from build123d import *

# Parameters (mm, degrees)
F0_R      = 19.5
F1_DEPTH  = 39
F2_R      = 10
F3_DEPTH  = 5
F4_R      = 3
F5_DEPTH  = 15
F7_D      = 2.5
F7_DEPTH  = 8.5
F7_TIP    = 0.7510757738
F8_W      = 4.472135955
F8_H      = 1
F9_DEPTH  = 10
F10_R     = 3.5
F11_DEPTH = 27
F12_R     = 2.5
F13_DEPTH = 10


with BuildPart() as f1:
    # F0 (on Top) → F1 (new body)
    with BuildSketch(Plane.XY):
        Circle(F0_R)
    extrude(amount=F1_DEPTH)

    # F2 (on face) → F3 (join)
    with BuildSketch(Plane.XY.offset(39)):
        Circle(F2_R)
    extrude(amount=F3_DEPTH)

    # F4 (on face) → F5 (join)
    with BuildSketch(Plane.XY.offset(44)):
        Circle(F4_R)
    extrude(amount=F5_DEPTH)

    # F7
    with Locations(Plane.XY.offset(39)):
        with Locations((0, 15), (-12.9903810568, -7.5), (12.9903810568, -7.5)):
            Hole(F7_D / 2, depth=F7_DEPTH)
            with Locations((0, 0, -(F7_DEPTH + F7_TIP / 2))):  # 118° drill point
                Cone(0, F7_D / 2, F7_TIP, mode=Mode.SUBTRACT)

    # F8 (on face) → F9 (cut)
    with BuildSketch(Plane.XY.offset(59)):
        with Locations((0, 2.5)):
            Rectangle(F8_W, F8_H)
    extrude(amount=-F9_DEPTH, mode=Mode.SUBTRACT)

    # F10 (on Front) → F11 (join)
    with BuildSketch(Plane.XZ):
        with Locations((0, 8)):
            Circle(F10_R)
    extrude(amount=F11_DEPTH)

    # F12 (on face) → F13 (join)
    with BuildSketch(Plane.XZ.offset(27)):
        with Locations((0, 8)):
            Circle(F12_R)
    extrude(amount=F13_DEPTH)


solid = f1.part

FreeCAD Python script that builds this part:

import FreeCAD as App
import Part
import Sketcher
from FreeCAD import Vector


def add_polygon(sketch, points):
    """Adds a closed chain of lines whose ends are joined by coincident constraints."""
    first, n = sketch.GeometryCount, len(points)
    for a, b in zip(points, points[1:] + points[:1]):
        sketch.addGeometry(Part.LineSegment(App.Vector(*a, 0), App.Vector(*b, 0)), False)
    for i in range(n):
        sketch.addConstraint(Sketcher.Constraint("Coincident", first + i, 2, first + (i + 1) % n, 1))

doc = App.newDocument("Part")
params = doc.addObject("Spreadsheet::Sheet", "Params")
for row, (alias, value) in enumerate([
    ("sketch1_diameter", "39 mm"),
    ("pad1_length", "39 mm"),
    ("sketch2_diameter", "20 mm"),
    ("pad2_length", "5 mm"),
    ("sketch3_diameter", "6 mm"),
    ("pad3_length", "15 mm"),
    ("sketch4_diameter", "2.5 mm"),
    ("hole_diameter", "2.5 mm"),
    ("hole_depth", "8.5 mm"),
    ("sketch5_height", "1 mm"),
    ("pocket1_length", "10 mm"),
    ("sketch6_diameter", "7 mm"),
    ("pad4_length", "27 mm"),
    ("sketch7_diameter", "5 mm"),
    ("pad5_length", "10 mm"),
], start=1):
    params.set(f"A{row}", alias)
    params.set(f"B{row}", "=" + value)
    params.setAlias(f"B{row}", alias)

body = doc.addObject("PartDesign::Body", "Body")

# Sketch on XY plane
sketch1 = body.newObject("Sketcher::SketchObject", "Sketch")
sketch1.AttachmentSupport = (doc.getObject("XY_Plane"), [""])
sketch1.MapMode = "FlatFace"
sketch1.addGeometry(Part.Circle(Vector(0, 0, 0), Vector(0, 0, 1), 20), False)
sketch1.addConstraint(Sketcher.Constraint("Coincident", 0, 3, -1, 1))
sketch1.addConstraint(Sketcher.Constraint("Diameter", 0, 39.0))
sketch1.setExpression("Constraints[1]", "Params.sketch1_diameter")
pad1 = body.newObject("PartDesign::Pad", "Pad")
pad1.Profile = sketch1
pad1.setExpression("Length", "Params.pad1_length")

# Sketch on XY plane
sketch2 = body.newObject("Sketcher::SketchObject", "Sketch001")
sketch2.AttachmentSupport = (doc.getObject("XY_Plane"), [""])
sketch2.MapMode = "FlatFace"
sketch2.AttachmentOffset = App.Placement(Vector(0, 0, 39), App.Rotation())
sketch2.addGeometry(Part.Circle(Vector(0, 0, 0), Vector(0, 0, 1), 10), False)
sketch2.addConstraint(Sketcher.Constraint("Coincident", 0, 3, -1, 1))
sketch2.addConstraint(Sketcher.Constraint("Diameter", 0, 20.0))
sketch2.setExpression("Constraints[1]", "Params.sketch2_diameter")
pad2 = body.newObject("PartDesign::Pad", "Pad001")
pad2.Profile = sketch2
pad2.setExpression("Length", "Params.pad2_length")

# Sketch on XY plane
sketch3 = body.newObject("Sketcher::SketchObject", "Sketch002")
sketch3.AttachmentSupport = (doc.getObject("XY_Plane"), [""])
sketch3.MapMode = "FlatFace"
sketch3.AttachmentOffset = App.Placement(Vector(0, 0, 44), App.Rotation())
sketch3.addGeometry(Part.Circle(Vector(0, 0, 0), Vector(0, 0, 1), 3), False)
sketch3.addConstraint(Sketcher.Constraint("Coincident", 0, 3, -1, 1))
sketch3.addConstraint(Sketcher.Constraint("Diameter", 0, 6.0))
sketch3.setExpression("Constraints[1]", "Params.sketch3_diameter")
pad3 = body.newObject("PartDesign::Pad", "Pad002")
pad3.Profile = sketch3
pad3.setExpression("Length", "Params.pad3_length")

# Sketch on XY plane
sketch4 = body.newObject("Sketcher::SketchObject", "Sketch003")
sketch4.AttachmentSupport = (doc.getObject("XY_Plane"), [""])
sketch4.MapMode = "FlatFace"
sketch4.AttachmentOffset = App.Placement(Vector(0, 0, 39), App.Rotation())
sketch4.addGeometry(Part.Circle(Vector(0, 15, 0), Vector(0, 0, 1), 1.2), False)
sketch4.addGeometry(Part.Circle(Vector(-13, -7.5, 0), Vector(0, 0, 1), 1.2), False)
sketch4.addGeometry(Part.Circle(Vector(13, -7.5, 0), Vector(0, 0, 1), 1.2), False)
sketch4.addConstraint(Sketcher.Constraint("Equal", 0, 1))
sketch4.addConstraint(Sketcher.Constraint("Equal", 1, 2))
sketch4.addConstraint(Sketcher.Constraint("Symmetric", 1, 3, 2, 3, -2))
sketch4.addConstraint(Sketcher.Constraint("PointOnObject", 0, 3, -2))
sketch4.addConstraint(Sketcher.Constraint("Diameter", 0, 2.5))
sketch4.addConstraint(Sketcher.Constraint("DistanceY", -1, 1, 0, 3, 15.0))
sketch4.addConstraint(Sketcher.Constraint("DistanceY", 1, 3, -1, 1, 7.5))
sketch4.addConstraint(Sketcher.Constraint("DistanceX", 1, 3, -1, 1, 12.990381))
sketch4.setExpression("Constraints[4]", "Params.sketch4_diameter")
doc.recompute()
hole = body.newObject("PartDesign::Hole", "Hole")
hole.Profile = sketch4
hole.ThreadType = "None"
hole.setExpression("Diameter", "Params.hole_diameter")
hole.DepthType = "Dimension"
hole.setExpression("Depth", "Params.hole_depth")
hole.DrillPoint = "Angled"
hole.DrillPointAngle = 118

# Sketch on XY plane
sketch5 = body.newObject("Sketcher::SketchObject", "Sketch004")
sketch5.AttachmentSupport = (doc.getObject("XY_Plane"), [""])
sketch5.MapMode = "FlatFace"
sketch5.AttachmentOffset = App.Placement(Vector(0, 0, 59), App.Rotation())
add_polygon(sketch5, [(-2.2, 3), (-2.2, 2), (2.2, 2), (2.2, 3)])  # lines 0-3
sketch5.addConstraint(Sketcher.Constraint("Vertical", 0))
sketch5.addConstraint(Sketcher.Constraint("Horizontal", 1))
sketch5.addConstraint(Sketcher.Constraint("Vertical", 2))
sketch5.addConstraint(Sketcher.Constraint("Horizontal", 3))
sketch5.addConstraint(Sketcher.Constraint("DistanceY", 0, 2, 0, 1, 1.0))
sketch5.addConstraint(Sketcher.Constraint("DistanceY", -1, 1, 0, 2, 2.0))
sketch5.addConstraint(Sketcher.Constraint("DistanceX", 1, 1, 1, 2, 4.472136))
sketch5.addConstraint(Sketcher.Constraint("DistanceX", 0, 2, -1, 1, 2.236068))
sketch5.setExpression("Constraints[8]", "Params.sketch5_height")
pocket1 = body.newObject("PartDesign::Pocket", "Pocket")
pocket1.Profile = sketch5
pocket1.setExpression("Length", "Params.pocket1_length")

# Sketch on XZ plane
sketch6 = body.newObject("Sketcher::SketchObject", "Sketch005")
sketch6.AttachmentSupport = (doc.getObject("XZ_Plane"), [""])
sketch6.MapMode = "FlatFace"
sketch6.addGeometry(Part.Circle(Vector(0, 8, 0), Vector(0, 0, 1), 3.5), False)
sketch6.addConstraint(Sketcher.Constraint("PointOnObject", 0, 3, -2))
sketch6.addConstraint(Sketcher.Constraint("Diameter", 0, 7.0))
sketch6.addConstraint(Sketcher.Constraint("DistanceY", -1, 1, 0, 3, 8.0))
sketch6.setExpression("Constraints[1]", "Params.sketch6_diameter")
pad4 = body.newObject("PartDesign::Pad", "Pad003")
pad4.Profile = sketch6
pad4.setExpression("Length", "Params.pad4_length")

# Sketch on XZ plane
sketch7 = body.newObject("Sketcher::SketchObject", "Sketch006")
sketch7.AttachmentSupport = (doc.getObject("XZ_Plane"), [""])
sketch7.MapMode = "FlatFace"
sketch7.AttachmentOffset = App.Placement(Vector(0, 0, 27), App.Rotation())
sketch7.addGeometry(Part.Circle(Vector(0, 8, 0), Vector(0, 0, 1), 2.5), False)
sketch7.addConstraint(Sketcher.Constraint("PointOnObject", 0, 3, -2))
sketch7.addConstraint(Sketcher.Constraint("Diameter", 0, 5.0))
sketch7.addConstraint(Sketcher.Constraint("DistanceY", -1, 1, 0, 3, 8.0))
sketch7.setExpression("Constraints[1]", "Params.sketch7_diameter")
pad5 = body.newObject("PartDesign::Pad", "Pad004")
pad5.Profile = sketch7
pad5.setExpression("Length", "Params.pad5_length")

doc.recompute()
